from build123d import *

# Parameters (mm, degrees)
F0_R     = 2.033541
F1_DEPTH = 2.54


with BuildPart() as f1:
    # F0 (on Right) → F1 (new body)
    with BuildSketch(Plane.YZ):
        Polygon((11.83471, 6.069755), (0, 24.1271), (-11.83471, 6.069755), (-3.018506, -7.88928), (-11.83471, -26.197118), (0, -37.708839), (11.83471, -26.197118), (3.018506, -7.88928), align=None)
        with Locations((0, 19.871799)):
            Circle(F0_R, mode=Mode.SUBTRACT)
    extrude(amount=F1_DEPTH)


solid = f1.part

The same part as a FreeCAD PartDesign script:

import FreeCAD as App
import Part
import Sketcher
from FreeCAD import Vector
Q = App.Units.Quantity

doc = App.newDocument("Part")
body = doc.addObject("PartDesign::Body", "Body")

# Sketch on YZ plane
sketch1 = body.newObject("Sketcher::SketchObject", "Sketch")
sketch1.AttachmentSupport = (doc.getObject("YZ_Plane"), [""])
sketch1.MapMode = "FlatFace"
sketch1.addGeometry([
    Part.LineSegment(Vector(11.8, 6.1, 0), Vector(0, 24.1, 0)),  # 0
    Part.LineSegment(Vector(0, 24.1, 0), Vector(-11.8, 6.1, 0)),  # 1
    Part.LineSegment(Vector(-11.8, 6.1, 0), Vector(-3, -7.9, 0)),  # 2
    Part.LineSegment(Vector(-3, -7.9, 0), Vector(-11.8, -26.2, 0)),  # 3
    Part.LineSegment(Vector(-11.8, -26.2, 0), Vector(0, -37.7, 0)),  # 4
    Part.LineSegment(Vector(0, -37.7, 0), Vector(11.8, -26.2, 0)),  # 5
    Part.LineSegment(Vector(11.8, -26.2, 0), Vector(3, -7.9, 0)),  # 6
    Part.LineSegment(Vector(3, -7.9, 0), Vector(11.8, 6.1, 0)),  # 7
    Part.Circle(Vector(0, 19.9, 0), Vector(0, 0, 1), 2),  # 8
], False)
sketch1.addConstraint([
    Sketcher.Constraint("Coincident", 0, 2, 1, 1),
    Sketcher.Constraint("Coincident", 1, 2, 2, 1),
    Sketcher.Constraint("Coincident", 2, 2, 3, 1),
    Sketcher.Constraint("Coincident", 3, 2, 4, 1),
    Sketcher.Constraint("Coincident", 4, 2, 5, 1),
    Sketcher.Constraint("Coincident", 5, 2, 6, 1),
    Sketcher.Constraint("Coincident", 6, 2, 7, 1),
    Sketcher.Constraint("Coincident", 7, 2, 0, 1),
    Sketcher.Constraint("Symmetric", 3, 2, 5, 2, -2),
    Sketcher.Constraint("Symmetric", 2, 2, 6, 2, -2),
    Sketcher.Constraint("Symmetric", 1, 2, 7, 2, -2),
    Sketcher.Constraint("PointOnObject", 8, 3, -2),
    Sketcher.Constraint("PointOnObject", 0, 2, -2),
    Sketcher.Constraint("PointOnObject", 4, 2, -2),
    Sketcher.Constraint("Vertical", 1, 2, 3, 2),
    Sketcher.Constraint("Equal", 2, 4),
    Sketcher.Constraint("Distance", 3, Q("0.8 in")),
    Sketcher.Constraint("Distance", 0, Q("0.85 in")),
    Sketcher.Constraint("Distance", 2, Q("0.65 in")),
    Sketcher.Constraint("Diameter", 8, 4.067082),
    Sketcher.Constraint("DistanceY", 4, 2, -1, 1, Q("1.4846 in")),
    Sketcher.Constraint("DistanceY", -1, 1, 8, 3, 19.871799),
    Sketcher.Constraint("DistanceY", -1, 1, 0, 2, 24.1271),
    Sketcher.Constraint("DistanceX", 1, 2, -1, 1, 11.83471),
])
pad1 = body.newObject("PartDesign::Pad", "Pad")
pad1.Profile = sketch1
pad1.Length = Q("0.1 in")

doc.recompute()
